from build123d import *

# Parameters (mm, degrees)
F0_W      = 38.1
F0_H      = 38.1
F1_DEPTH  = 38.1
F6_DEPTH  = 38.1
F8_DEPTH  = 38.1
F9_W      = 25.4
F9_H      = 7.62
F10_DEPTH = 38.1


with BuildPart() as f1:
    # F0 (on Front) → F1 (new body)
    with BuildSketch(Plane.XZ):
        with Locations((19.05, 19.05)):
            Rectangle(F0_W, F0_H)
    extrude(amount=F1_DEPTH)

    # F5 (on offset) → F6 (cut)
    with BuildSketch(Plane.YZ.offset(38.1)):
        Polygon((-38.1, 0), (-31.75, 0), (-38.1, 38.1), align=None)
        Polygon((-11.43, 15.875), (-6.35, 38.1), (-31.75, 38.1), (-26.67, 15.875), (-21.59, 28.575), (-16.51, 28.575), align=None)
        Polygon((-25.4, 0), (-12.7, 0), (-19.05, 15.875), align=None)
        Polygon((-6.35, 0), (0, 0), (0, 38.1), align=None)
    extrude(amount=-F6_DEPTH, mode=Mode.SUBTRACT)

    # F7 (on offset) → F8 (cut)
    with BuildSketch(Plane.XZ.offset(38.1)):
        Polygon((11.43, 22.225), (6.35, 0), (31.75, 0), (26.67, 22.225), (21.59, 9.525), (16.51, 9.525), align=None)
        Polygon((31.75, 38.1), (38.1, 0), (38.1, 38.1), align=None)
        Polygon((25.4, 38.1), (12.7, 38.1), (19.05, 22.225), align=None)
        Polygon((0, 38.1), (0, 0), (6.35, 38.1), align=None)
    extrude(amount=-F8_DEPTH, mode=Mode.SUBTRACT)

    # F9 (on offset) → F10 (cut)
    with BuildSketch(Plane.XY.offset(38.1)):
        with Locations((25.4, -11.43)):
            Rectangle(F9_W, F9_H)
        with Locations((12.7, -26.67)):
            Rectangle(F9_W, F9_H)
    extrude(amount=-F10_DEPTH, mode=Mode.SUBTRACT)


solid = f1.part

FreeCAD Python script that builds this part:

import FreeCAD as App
import Part
import Sketcher

V = App.Vector
Q = App.Units.Quantity

doc = App.newDocument("Part")
params = doc.addObject("Spreadsheet::Sheet", "Params")
for row, (alias, value) in enumerate([
    ("sketch1_width", "1.5 in"),
    ("pad1_length", "1.5 in"),
    ("sketch2_width", "1 in"),
    ("sketch2_width2", "0.2 in"),
    ("sketch2_width3", "0.5 in"),
    ("sketch2_height", "1.5 in"),
    ("pocket1_length", "1.5 in"),
    ("sketch3_width", "1 in"),
    ("sketch3_width2", "0.2 in"),
    ("sketch3_width3", "0.5 in"),
    ("sketch3_height", "1.5 in"),
    ("pocket2_length", "1.5 in"),
    ("sketch4_width", "1 in"),
    ("sketch4_height", "0.3 in"),
    ("pocket3_length", "1.5 in"),
], start=1):
    params.set(f"A{row}", alias)
    params.set(f"B{row}", "=" + value)
    params.setAlias(f"B{row}", alias)

body = doc.addObject("PartDesign::Body", "Body")

# Sketch on XZ plane
sketch1 = doc.addObject("Sketcher::SketchObject", "Sketch")
body.addObject(sketch1)
sketch1.AttachmentSupport = (doc.XZ_Plane, [""])
sketch1.MapMode = "FlatFace"
sketch1.addGeometry([
    Part.LineSegment(V(0, 38, 0), V(0, 0, 0)),
    Part.LineSegment(V(0, 0, 0), V(38, 0, 0)),
    Part.LineSegment(V(38, 0, 0), V(38, 38, 0)),
    Part.LineSegment(V(38, 38, 0), V(0, 38, 0)),
], False)
sketch1.addConstraint([
    Sketcher.Constraint("Coincident", 0, 2, 1, 1),
    Sketcher.Constraint("Coincident", 1, 2, 2, 1),
    Sketcher.Constraint("Coincident", 2, 2, 3, 1),
    Sketcher.Constraint("Coincident", 3, 2, 0, 1),
    Sketcher.Constraint("Vertical", 0),
    Sketcher.Constraint("Horizontal", 1),
    Sketcher.Constraint("Vertical", 2),
    Sketcher.Constraint("Horizontal", 3),
    Sketcher.Constraint("Coincident", 0, 2, -1, 1),
    Sketcher.Constraint("Equal", 3, 0),
    Sketcher.Constraint("DistanceX", 1, 1, 1, 2, Q("1.5 in")),
])
sketch1.setExpression("Constraints[10]", "Params.sketch1_width")
pad1 = doc.addObject("PartDesign::Pad", "Pad")
body.addObject(pad1)
pad1.Profile = sketch1
pad1.setExpression("Length", "Params.pad1_length")

# Sketch on YZ plane
sketch2 = doc.addObject("Sketcher::SketchObject", "Sketch001")
body.addObject(sketch2)
sketch2.AttachmentSupport = (doc.YZ_Plane, [""])
sketch2.MapMode = "FlatFace"
sketch2.AttachmentOffset = App.Placement(V(0, 0, 1.5 * 25.4), App.Rotation())
sketch2.addGeometry([
    Part.LineSegment(V(-38, 0, 0), V(-32, 0, 0)),  # 0
    Part.LineSegment(V(-32, 0, 0), V(-38, 38, 0)),  # 1
    Part.LineSegment(V(-38, 38, 0), V(-38, 0, 0)),  # 2
    Part.LineSegment(V(-11, 16, 0), V(-6, 38, 0)),  # 3
    Part.LineSegment(V(-6, 38, 0), V(-32, 38, 0)),  # 4
    Part.LineSegment(V(-32, 38, 0), V(-27, 16, 0)),  # 5
    Part.LineSegment(V(-27, 16, 0), V(-22, 29, 0)),  # 6
    Part.LineSegment(V(-22, 29, 0), V(-17, 29, 0)),  # 7
    Part.LineSegment(V(-17, 29, 0), V(-11, 16, 0)),  # 8
    Part.LineSegment(V(-25, 0, 0), V(-13, 0, 0)),  # 9
    Part.LineSegment(V(-13, 0, 0), V(-19, 16, 0)),  # 10
    Part.LineSegment(V(-19, 16, 0), V(-25, 0, 0)),  # 11
    Part.LineSegment(V(-6, 0, 0), V(0, 0, 0)),  # 12
    Part.LineSegment(V(0, 0, 0), V(0, 38, 0)),  # 13
    Part.LineSegment(V(0, 38, 0), V(-6, 0, 0)),  # 14
], False)
sketch2.addConstraint([
    Sketcher.Constraint("Coincident", 0, 2, 1, 1),
    Sketcher.Constraint("Coincident", 1, 2, 2, 1),
    Sketcher.Constraint("Coincident", 2, 2, 0, 1),
    Sketcher.Constraint("Coincident", 3, 2, 4, 1),
    Sketcher.Constraint("Coincident", 4, 2, 5, 1),
    Sketcher.Constraint("Coincident", 5, 2, 6, 1),
    Sketcher.Constraint("Coincident", 6, 2, 7, 1),
    Sketcher.Constraint("Coincident", 7, 2, 8, 1),
    Sketcher.Constraint("Coincident", 8, 2, 3, 1),
    Sketcher.Constraint("Coincident", 9, 2, 10, 1),
    Sketcher.Constraint("Coincident", 10, 2, 11, 1),
    Sketcher.Constraint("Coincident", 11, 2, 9, 1),
    Sketcher.Constraint("Coincident", 12, 2, 13, 1),
    Sketcher.Constraint("Coincident", 13, 2, 14, 1),
    Sketcher.Constraint("Coincident", 14, 2, 12, 1),
    Sketcher.Constraint("Horizontal", 0),
    Sketcher.Constraint("Vertical", 2),
    Sketcher.Constraint("Horizontal", 4),
    Sketcher.Constraint("Horizontal", 7),
    Sketcher.Constraint("Horizontal", 9),
    Sketcher.Constraint("Horizontal", 12),
    Sketcher.Constraint("Vertical", 13),
    Sketcher.Constraint("Coincident", 12, 2, -1, 1),
    Sketcher.Constraint("PointOnObject", 0, 2, -1),
    Sketcher.Constraint("PointOnObject", 9, 2, -1),
    Sketcher.Constraint("Parallel", 8, 10),
    Sketcher.Constraint("Parallel", 6, 11),
    Sketcher.Constraint("Horizontal", 1, 2, 3, 2),
    Sketcher.Constraint("Horizontal", 5, 2, 8, 2),
    Sketcher.Constraint("Horizontal", 8, 2, 10, 2),
    Sketcher.Constraint("Horizontal", 4, 2, 13, 2),
    Sketcher.Constraint("Vertical", 0, 2, 4, 2),
    Sketcher.Constraint("Vertical", 3, 2, 14, 2),
    Sketcher.Constraint("Equal", 0, 12),
    Sketcher.Constraint("Equal", 3, 5),
    Sketcher.Constraint("Equal", 6, 8),
    Sketcher.Constraint("DistanceX", 4, 2, 4, 1, Q("1 in")),
    Sketcher.Constraint("DistanceX", 7, 1, 7, 2, Q("0.2 in")),
    Sketcher.Constraint("DistanceX", 9, 1, 9, 2, Q("0.5 in")),
    Sketcher.Constraint("DistanceY", 2, 2, 2, 1, Q("1.5 in")),
    Sketcher.Constraint("DistanceX", 11, 2, -1, 1, Q("1 in")),
    Sketcher.Constraint("DistanceX", 2, 2, 9, 2, Q("1 in")),
    Sketcher.Constraint("DistanceX", 0, 2, 5, 2, Q("0.2 in")),
    Sketcher.Constraint("DistanceY", 5, 2, 6, 2, Q("0.5 in")),
])
sketch2.setExpression("Constraints[36]", "Params.sketch2_width")
sketch2.setExpression("Constraints[37]", "Params.sketch2_width2")
sketch2.setExpression("Constraints[38]", "Params.sketch2_width3")
sketch2.setExpression("Constraints[39]", "Params.sketch2_height")
pocket1 = doc.addObject("PartDesign::Pocket", "Pocket")
body.addObject(pocket1)
pocket1.Profile = sketch2
pocket1.setExpression("Length", "Params.pocket1_length")

# Sketch on XZ plane
sketch3 = doc.addObject("Sketcher::SketchObject", "Sketch002")
body.addObject(sketch3)
sketch3.AttachmentSupport = (doc.XZ_Plane, [""])
sketch3.MapMode = "FlatFace"
sketch3.AttachmentOffset = App.Placement(V(0, 0, 1.5 * 25.4), App.Rotation())
sketch3.addGeometry([
    Part.LineSegment(V(11, 22, 0), V(6, 0, 0)),  # 0
    Part.LineSegment(V(6, 0, 0), V(32, 0, 0)),  # 1
    Part.LineSegment(V(32, 0, 0), V(27, 22, 0)),  # 2
    Part.LineSegment(V(27, 22, 0), V(22, 10, 0)),  # 3
    Part.LineSegment(V(22, 10, 0), V(17, 10, 0)),  # 4
    Part.LineSegment(V(17, 10, 0), V(11, 22, 0)),  # 5
    Part.LineSegment(V(32, 38, 0), V(38, 0, 0)),  # 6
    Part.LineSegment(V(38, 0, 0), V(38, 38, 0)),  # 7
    Part.LineSegment(V(38, 38, 0), V(32, 38, 0)),  # 8
    Part.LineSegment(V(25, 38, 0), V(13, 38, 0)),  # 9
    Part.LineSegment(V(13, 38, 0), V(19, 22, 0)),  # 10
    Part.LineSegment(V(19, 22, 0), V(25, 38, 0)),  # 11
    Part.LineSegment(V(0, 38, 0), V(0, 0, 0)),  # 12
    Part.LineSegment(V(0, 0, 0), V(6, 38, 0)),  # 13
    Part.LineSegment(V(6, 38, 0), V(0, 38, 0)),  # 14
], False)
sketch3.addConstraint([
    Sketcher.Constraint("Coincident", 0, 2, 1, 1),
    Sketcher.Constraint("Coincident", 1, 2, 2, 1),
    Sketcher.Constraint("Coincident", 2, 2, 3, 1),
    Sketcher.Constraint("Coincident", 3, 2, 4, 1),
    Sketcher.Constraint("Coincident", 4, 2, 5, 1),
    Sketcher.Constraint("Coincident", 5, 2, 0, 1),
    Sketcher.Constraint("Coincident", 6, 2, 7, 1),
    Sketcher.Constraint("Coincident", 7, 2, 8, 1),
    Sketcher.Constraint("Coincident", 8, 2, 6, 1),
    Sketcher.Constraint("Coincident", 9, 2, 10, 1),
    Sketcher.Constraint("Coincident", 10, 2, 11, 1),
    Sketcher.Constraint("Coincident", 11, 2, 9, 1),
    Sketcher.Constraint("Coincident", 12, 2, 13, 1),
    Sketcher.Constraint("Coincident", 13, 2, 14, 1),
    Sketcher.Constraint("Coincident", 14, 2, 12, 1),
    Sketcher.Constraint("Horizontal", 1),
    Sketcher.Constraint("Horizontal", 4),
    Sketcher.Constraint("Vertical", 7),
    Sketcher.Constraint("Horizontal", 8),
    Sketcher.Constraint("Horizontal", 9),
    Sketcher.Constraint("Vertical", 12),
    Sketcher.Constraint("Horizontal", 14),
    Sketcher.Constraint("Coincident", 12, 2, -1, 1),
    Sketcher.Constraint("PointOnObject", 0, 2, -1),
    Sketcher.Constraint("PointOnObject", 6, 2, -1),
    Sketcher.Constraint("Parallel", 5, 10),
    Sketcher.Constraint("Parallel", 3, 11),
    Sketcher.Constraint("Horizontal", 2, 2, 5, 2),
    Sketcher.Constraint("Horizontal", 8, 2, 9, 2),
    Sketcher.Constraint("Horizontal", 5, 2, 10, 2),
    Sketcher.Constraint("Horizontal", 11, 2, 13, 2),
    Sketcher.Constraint("Vertical", 1, 2, 8, 2),
    Sketcher.Constraint("Vertical", 0, 2, 13, 2),
    Sketcher.Constraint("Equal", 8, 14),
    Sketcher.Constraint("Equal", 0, 2),
    Sketcher.Constraint("Equal", 3, 5),
    Sketcher.Constraint("DistanceX", 1, 1, 1, 2, Q("1 in")),
    Sketcher.Constraint("DistanceX", 4, 2, 4, 1, Q("0.2 in")),
    Sketcher.Constraint("DistanceX", 9, 2, 9, 1, Q("0.5 in")),
    Sketcher.Constraint("DistanceY", 7, 1, 7, 2, Q("1.5 in")),
    Sketcher.Constraint("DistanceX", -1, 1, 11, 2, Q("1 in")),
    Sketcher.Constraint("DistanceX", 9, 2, 7, 2, Q("1 in")),
    Sketcher.Constraint("DistanceX", 2, 2, 1, 2, Q("0.2 in")),
    Sketcher.Constraint("DistanceY", 3, 2, 2, 2, Q("0.5 in")),
])
sketch3.setExpression("Constraints[36]", "Params.sketch3_width")
sketch3.setExpression("Constraints[37]", "Params.sketch3_width2")
sketch3.setExpression("Constraints[38]", "Params.sketch3_width3")
sketch3.setExpression("Constraints[39]", "Params.sketch3_height")
pocket2 = doc.addObject("PartDesign::Pocket", "Pocket001")
body.addObject(pocket2)
pocket2.Profile = sketch3
pocket2.setExpression("Length", "Params.pocket2_length")

# Sketch on XY plane
sketch4 = doc.addObject("Sketcher::SketchObject", "Sketch003")
body.addObject(sketch4)
sketch4.AttachmentSupport = (doc.XY_Plane, [""])
sketch4.MapMode = "FlatFace"
sketch4.AttachmentOffset = App.Placement(V(0, 0, 1.5 * 25.4), App.Rotation())
sketch4.addGeometry([
    Part.LineSegment(V(13, -8, 0), V(13, -15, 0)),  # 0
    Part.LineSegment(V(13, -15, 0), V(38, -15, 0)),  # 1
    Part.LineSegment(V(38, -15, 0), V(38, -8, 0)),  # 2
    Part.LineSegment(V(38, -8, 0), V(13, -8, 0)),  # 3
    Part.LineSegment(V(0, -23, 0), V(0, -30, 0)),  # 4
    Part.LineSegment(V(0, -30, 0), V(25, -30, 0)),  # 5
    Part.LineSegment(V(25, -30, 0), V(25, -23, 0)),  # 6
    Part.LineSegment(V(25, -23, 0), V(0, -23, 0)),  # 7
], False)
sketch4.addConstraint([
    Sketcher.Constraint("Coincident", 0, 2, 1, 1),
    Sketcher.Constraint("Coincident", 1, 2, 2, 1),
    Sketcher.Constraint("Coincident", 2, 2, 3, 1),
    Sketcher.Constraint("Coincident", 3, 2, 0, 1),
    Sketcher.Constraint("Coincident", 4, 2, 5, 1),
    Sketcher.Constraint("Coincident", 5, 2, 6, 1),
    Sketcher.Constraint("Coincident", 6, 2, 7, 1),
    Sketcher.Constraint("Coincident", 7, 2, 4, 1),
    Sketcher.Constraint("Vertical", 0),
    Sketcher.Constraint("Horizontal", 1),
    Sketcher.Constraint("Vertical", 2),
    Sketcher.Constraint("Horizontal", 3),
    Sketcher.Constraint("Vertical", 4),
    Sketcher.Constraint("Horizontal", 5),
    Sketcher.Constraint("Vertical", 6),
    Sketcher.Constraint("Horizontal", 7),
    Sketcher.Constraint("PointOnObject", 4, 2, -2),
    Sketcher.Constraint("Equal", 3, 5),
    Sketcher.Constraint("Equal", 2, 4),
    Sketcher.Constraint("DistanceX", 1, 1, 1, 2, Q("1 in")),
    Sketcher.Constraint("DistanceY", 0, 2, 0, 1, Q("0.3 in")),
    Sketcher.Constraint("DistanceX", -1, 1, 0, 2, Q("0.5 in")),
    Sketcher.Constraint("DistanceY", 0, 2, -1, 1, Q("0.6 in")),
    Sketcher.Constraint("DistanceY", 4, 2, -1, 1, Q("1.2 in")),
])
sketch4.setExpression("Constraints[19]", "Params.sketch4_width")
sketch4.setExpression("Constraints[20]", "Params.sketch4_height")
pocket3 = doc.addObject("PartDesign::Pocket", "Pocket002")
body.addObject(pocket3)
pocket3.Profile = sketch4
pocket3.setExpression("Length", "Params.pocket3_length")

doc.recompute()
